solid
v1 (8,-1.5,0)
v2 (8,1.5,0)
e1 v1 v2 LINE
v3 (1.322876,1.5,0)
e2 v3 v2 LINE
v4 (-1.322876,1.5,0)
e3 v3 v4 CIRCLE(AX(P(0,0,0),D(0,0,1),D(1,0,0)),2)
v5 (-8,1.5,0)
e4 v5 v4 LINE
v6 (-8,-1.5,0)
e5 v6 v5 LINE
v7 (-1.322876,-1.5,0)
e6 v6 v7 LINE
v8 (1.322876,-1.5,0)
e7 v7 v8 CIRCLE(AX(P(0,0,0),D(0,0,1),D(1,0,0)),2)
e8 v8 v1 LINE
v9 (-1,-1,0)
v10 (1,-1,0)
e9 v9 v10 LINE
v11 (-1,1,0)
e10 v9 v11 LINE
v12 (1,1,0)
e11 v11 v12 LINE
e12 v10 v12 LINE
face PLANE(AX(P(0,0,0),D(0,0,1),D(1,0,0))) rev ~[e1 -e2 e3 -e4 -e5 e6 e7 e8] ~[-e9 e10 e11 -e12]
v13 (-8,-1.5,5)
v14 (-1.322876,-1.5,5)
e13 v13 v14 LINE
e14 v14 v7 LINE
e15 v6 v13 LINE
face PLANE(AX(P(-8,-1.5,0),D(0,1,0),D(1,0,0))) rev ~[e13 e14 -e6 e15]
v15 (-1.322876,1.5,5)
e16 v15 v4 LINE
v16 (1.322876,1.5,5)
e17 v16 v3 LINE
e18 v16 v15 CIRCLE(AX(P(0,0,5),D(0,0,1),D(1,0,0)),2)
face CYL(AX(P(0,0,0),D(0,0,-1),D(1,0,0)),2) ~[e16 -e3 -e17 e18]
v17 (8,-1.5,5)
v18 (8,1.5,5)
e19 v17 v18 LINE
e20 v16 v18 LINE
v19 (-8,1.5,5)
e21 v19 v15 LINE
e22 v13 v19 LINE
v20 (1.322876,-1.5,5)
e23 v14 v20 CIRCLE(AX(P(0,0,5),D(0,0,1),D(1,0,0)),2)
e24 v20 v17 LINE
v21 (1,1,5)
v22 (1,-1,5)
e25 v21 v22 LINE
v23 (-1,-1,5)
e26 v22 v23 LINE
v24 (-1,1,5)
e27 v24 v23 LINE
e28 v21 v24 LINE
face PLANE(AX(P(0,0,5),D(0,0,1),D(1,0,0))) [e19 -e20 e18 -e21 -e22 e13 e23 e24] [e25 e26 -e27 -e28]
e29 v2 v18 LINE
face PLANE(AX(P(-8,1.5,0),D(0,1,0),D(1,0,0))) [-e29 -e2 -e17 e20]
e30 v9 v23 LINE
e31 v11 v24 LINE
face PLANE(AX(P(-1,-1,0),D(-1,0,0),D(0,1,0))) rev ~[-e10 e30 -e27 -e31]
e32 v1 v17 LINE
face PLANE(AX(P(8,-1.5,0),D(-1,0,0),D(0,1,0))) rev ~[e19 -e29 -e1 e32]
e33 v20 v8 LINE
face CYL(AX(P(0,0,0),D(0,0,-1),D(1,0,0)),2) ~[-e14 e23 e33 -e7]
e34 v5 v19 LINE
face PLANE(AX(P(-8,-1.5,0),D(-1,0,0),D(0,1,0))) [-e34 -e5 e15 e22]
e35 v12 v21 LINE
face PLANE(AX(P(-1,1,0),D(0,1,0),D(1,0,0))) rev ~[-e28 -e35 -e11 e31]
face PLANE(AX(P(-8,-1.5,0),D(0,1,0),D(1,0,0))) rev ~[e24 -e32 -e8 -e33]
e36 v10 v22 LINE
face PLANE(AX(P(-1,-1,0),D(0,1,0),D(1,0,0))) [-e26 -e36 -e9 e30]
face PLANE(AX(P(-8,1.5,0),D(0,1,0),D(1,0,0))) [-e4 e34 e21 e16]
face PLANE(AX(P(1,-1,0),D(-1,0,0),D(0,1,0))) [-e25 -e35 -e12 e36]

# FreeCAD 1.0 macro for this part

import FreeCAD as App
import Part
import Sketcher

doc = App.newDocument("Part")
body = doc.addObject("PartDesign::Body", "Body")

sketch1 = body.newObject("Sketcher::SketchObject", "Sketch")
sketch1.AttachmentSupport = (doc.getObject("XY_Plane"), [""])
sketch1.MapMode = "FlatFace"
sketch1.addGeometry(Part.LineSegment(App.Vector(-1, 1, 0), App.Vector(-1, -1, 0)), False)
sketch1.addGeometry(Part.LineSegment(App.Vector(-1, -1, 0), App.Vector(1, -1, 0)), False)
sketch1.addGeometry(Part.LineSegment(App.Vector(1, -1, 0), App.Vector(1, 1, 0)), False)
sketch1.addGeometry(Part.LineSegment(App.Vector(1, 1, 0), App.Vector(-1, 1, 0)), False)
sketch1.addConstraint(Sketcher.Constraint("Coincident", 0, 2, 1, 1))
sketch1.addConstraint(Sketcher.Constraint("Coincident", 1, 2, 2, 1))
sketch1.addConstraint(Sketcher.Constraint("Coincident", 2, 2, 3, 1))
sketch1.addConstraint(Sketcher.Constraint("Coincident", 3, 2, 0, 1))
sketch1.addConstraint(Sketcher.Constraint("Vertical", 0))
sketch1.addConstraint(Sketcher.Constraint("Horizontal", 1))
sketch1.addConstraint(Sketcher.Constraint("Vertical", 2))
sketch1.addConstraint(Sketcher.Constraint("Horizontal", 3))
sketch1.addConstraint(Sketcher.Constraint("Symmetric", 0, 2, 2, 2, -1, 1))
sketch1.addConstraint(Sketcher.Constraint("Equal", 3, 0))
sketch1.addConstraint(Sketcher.Constraint("DistanceX", 1, 1, 1, 2, 2.0))
pad1 = body.newObject("PartDesign::Pad", "Pad")
pad1.Profile = sketch1
pad1.Length = 10
body2 = doc.addObject("PartDesign::Body", "Body001")

sketch2 = body2.newObject("Sketcher::SketchObject", "Sketch001")
sketch2.AttachmentSupport = (doc.getObject("XY_Plane001"), [""])
sketch2.MapMode = "FlatFace"
sketch2.addGeometry(Part.LineSegment(App.Vector(-8, 1.5, 0), App.Vector(-8, -1.5, 0)), False)
sketch2.addGeometry(Part.LineSegment(App.Vector(-8, -1.5, 0), App.Vector(8, -1.5, 0)), False)
sketch2.addGeometry(Part.LineSegment(App.Vector(8, -1.5, 0), App.Vector(8, 1.5, 0)), False)
sketch2.addGeometry(Part.LineSegment(App.Vector(8, 1.5, 0), App.Vector(-8, 1.5, 0)), False)
sketch2.addConstraint(Sketcher.Constraint("Coincident", 0, 2, 1, 1))
sketch2.addConstraint(Sketcher.Constraint("Coincident", 1, 2, 2, 1))
sketch2.addConstraint(Sketcher.Constraint("Coincident", 2, 2, 3, 1))
sketch2.addConstraint(Sketcher.Constraint("Coincident", 3, 2, 0, 1))
sketch2.addConstraint(Sketcher.Constraint("Vertical", 0))
sketch2.addConstraint(Sketcher.Constraint("Horizontal", 1))
sketch2.addConstraint(Sketcher.Constraint("Vertical", 2))
sketch2.addConstraint(Sketcher.Constraint("Horizontal", 3))
sketch2.addConstraint(Sketcher.Constraint("Symmetric", 0, 2, 2, 2, -1, 1))
sketch2.addConstraint(Sketcher.Constraint("DistanceX", 1, 1, 1, 2, 16.0))
sketch2.addConstraint(Sketcher.Constraint("DistanceY", 0, 2, 0, 1, 3.0))
pad2 = body2.newObject("PartDesign::Pad", "Pad001")
pad2.Profile = sketch2
pad2.Length = 5
body3 = doc.addObject("PartDesign::Body", "Body002")

sketch3 = body3.newObject("Sketcher::SketchObject", "Sketch002")
sketch3.AttachmentSupport = (doc.getObject("XY_Plane002"), [""])
sketch3.MapMode = "FlatFace"
sketch3.addGeometry(Part.Circle(App.Vector(0, 0, 0), App.Vector(0, 0, 1), 2), False)
sketch3.addConstraint(Sketcher.Constraint("Coincident", 0, 3, -1, 1))
sketch3.addConstraint(Sketcher.Constraint("Diameter", 0, 4.0))
pad3 = body3.newObject("PartDesign::Pad", "Pad002")
pad3.Profile = sketch3
pad3.Length = 5
doc.recompute()

boolean = body3.newObject("PartDesign::Boolean", "Boolean")
boolean.Type = "Fuse"
boolean.addObjects([body2])
doc.recompute()

boolean2 = body3.newObject("PartDesign::Boolean", "Boolean001")
boolean2.Type = "Cut"
boolean2.addObjects([body])

doc.recompute()
